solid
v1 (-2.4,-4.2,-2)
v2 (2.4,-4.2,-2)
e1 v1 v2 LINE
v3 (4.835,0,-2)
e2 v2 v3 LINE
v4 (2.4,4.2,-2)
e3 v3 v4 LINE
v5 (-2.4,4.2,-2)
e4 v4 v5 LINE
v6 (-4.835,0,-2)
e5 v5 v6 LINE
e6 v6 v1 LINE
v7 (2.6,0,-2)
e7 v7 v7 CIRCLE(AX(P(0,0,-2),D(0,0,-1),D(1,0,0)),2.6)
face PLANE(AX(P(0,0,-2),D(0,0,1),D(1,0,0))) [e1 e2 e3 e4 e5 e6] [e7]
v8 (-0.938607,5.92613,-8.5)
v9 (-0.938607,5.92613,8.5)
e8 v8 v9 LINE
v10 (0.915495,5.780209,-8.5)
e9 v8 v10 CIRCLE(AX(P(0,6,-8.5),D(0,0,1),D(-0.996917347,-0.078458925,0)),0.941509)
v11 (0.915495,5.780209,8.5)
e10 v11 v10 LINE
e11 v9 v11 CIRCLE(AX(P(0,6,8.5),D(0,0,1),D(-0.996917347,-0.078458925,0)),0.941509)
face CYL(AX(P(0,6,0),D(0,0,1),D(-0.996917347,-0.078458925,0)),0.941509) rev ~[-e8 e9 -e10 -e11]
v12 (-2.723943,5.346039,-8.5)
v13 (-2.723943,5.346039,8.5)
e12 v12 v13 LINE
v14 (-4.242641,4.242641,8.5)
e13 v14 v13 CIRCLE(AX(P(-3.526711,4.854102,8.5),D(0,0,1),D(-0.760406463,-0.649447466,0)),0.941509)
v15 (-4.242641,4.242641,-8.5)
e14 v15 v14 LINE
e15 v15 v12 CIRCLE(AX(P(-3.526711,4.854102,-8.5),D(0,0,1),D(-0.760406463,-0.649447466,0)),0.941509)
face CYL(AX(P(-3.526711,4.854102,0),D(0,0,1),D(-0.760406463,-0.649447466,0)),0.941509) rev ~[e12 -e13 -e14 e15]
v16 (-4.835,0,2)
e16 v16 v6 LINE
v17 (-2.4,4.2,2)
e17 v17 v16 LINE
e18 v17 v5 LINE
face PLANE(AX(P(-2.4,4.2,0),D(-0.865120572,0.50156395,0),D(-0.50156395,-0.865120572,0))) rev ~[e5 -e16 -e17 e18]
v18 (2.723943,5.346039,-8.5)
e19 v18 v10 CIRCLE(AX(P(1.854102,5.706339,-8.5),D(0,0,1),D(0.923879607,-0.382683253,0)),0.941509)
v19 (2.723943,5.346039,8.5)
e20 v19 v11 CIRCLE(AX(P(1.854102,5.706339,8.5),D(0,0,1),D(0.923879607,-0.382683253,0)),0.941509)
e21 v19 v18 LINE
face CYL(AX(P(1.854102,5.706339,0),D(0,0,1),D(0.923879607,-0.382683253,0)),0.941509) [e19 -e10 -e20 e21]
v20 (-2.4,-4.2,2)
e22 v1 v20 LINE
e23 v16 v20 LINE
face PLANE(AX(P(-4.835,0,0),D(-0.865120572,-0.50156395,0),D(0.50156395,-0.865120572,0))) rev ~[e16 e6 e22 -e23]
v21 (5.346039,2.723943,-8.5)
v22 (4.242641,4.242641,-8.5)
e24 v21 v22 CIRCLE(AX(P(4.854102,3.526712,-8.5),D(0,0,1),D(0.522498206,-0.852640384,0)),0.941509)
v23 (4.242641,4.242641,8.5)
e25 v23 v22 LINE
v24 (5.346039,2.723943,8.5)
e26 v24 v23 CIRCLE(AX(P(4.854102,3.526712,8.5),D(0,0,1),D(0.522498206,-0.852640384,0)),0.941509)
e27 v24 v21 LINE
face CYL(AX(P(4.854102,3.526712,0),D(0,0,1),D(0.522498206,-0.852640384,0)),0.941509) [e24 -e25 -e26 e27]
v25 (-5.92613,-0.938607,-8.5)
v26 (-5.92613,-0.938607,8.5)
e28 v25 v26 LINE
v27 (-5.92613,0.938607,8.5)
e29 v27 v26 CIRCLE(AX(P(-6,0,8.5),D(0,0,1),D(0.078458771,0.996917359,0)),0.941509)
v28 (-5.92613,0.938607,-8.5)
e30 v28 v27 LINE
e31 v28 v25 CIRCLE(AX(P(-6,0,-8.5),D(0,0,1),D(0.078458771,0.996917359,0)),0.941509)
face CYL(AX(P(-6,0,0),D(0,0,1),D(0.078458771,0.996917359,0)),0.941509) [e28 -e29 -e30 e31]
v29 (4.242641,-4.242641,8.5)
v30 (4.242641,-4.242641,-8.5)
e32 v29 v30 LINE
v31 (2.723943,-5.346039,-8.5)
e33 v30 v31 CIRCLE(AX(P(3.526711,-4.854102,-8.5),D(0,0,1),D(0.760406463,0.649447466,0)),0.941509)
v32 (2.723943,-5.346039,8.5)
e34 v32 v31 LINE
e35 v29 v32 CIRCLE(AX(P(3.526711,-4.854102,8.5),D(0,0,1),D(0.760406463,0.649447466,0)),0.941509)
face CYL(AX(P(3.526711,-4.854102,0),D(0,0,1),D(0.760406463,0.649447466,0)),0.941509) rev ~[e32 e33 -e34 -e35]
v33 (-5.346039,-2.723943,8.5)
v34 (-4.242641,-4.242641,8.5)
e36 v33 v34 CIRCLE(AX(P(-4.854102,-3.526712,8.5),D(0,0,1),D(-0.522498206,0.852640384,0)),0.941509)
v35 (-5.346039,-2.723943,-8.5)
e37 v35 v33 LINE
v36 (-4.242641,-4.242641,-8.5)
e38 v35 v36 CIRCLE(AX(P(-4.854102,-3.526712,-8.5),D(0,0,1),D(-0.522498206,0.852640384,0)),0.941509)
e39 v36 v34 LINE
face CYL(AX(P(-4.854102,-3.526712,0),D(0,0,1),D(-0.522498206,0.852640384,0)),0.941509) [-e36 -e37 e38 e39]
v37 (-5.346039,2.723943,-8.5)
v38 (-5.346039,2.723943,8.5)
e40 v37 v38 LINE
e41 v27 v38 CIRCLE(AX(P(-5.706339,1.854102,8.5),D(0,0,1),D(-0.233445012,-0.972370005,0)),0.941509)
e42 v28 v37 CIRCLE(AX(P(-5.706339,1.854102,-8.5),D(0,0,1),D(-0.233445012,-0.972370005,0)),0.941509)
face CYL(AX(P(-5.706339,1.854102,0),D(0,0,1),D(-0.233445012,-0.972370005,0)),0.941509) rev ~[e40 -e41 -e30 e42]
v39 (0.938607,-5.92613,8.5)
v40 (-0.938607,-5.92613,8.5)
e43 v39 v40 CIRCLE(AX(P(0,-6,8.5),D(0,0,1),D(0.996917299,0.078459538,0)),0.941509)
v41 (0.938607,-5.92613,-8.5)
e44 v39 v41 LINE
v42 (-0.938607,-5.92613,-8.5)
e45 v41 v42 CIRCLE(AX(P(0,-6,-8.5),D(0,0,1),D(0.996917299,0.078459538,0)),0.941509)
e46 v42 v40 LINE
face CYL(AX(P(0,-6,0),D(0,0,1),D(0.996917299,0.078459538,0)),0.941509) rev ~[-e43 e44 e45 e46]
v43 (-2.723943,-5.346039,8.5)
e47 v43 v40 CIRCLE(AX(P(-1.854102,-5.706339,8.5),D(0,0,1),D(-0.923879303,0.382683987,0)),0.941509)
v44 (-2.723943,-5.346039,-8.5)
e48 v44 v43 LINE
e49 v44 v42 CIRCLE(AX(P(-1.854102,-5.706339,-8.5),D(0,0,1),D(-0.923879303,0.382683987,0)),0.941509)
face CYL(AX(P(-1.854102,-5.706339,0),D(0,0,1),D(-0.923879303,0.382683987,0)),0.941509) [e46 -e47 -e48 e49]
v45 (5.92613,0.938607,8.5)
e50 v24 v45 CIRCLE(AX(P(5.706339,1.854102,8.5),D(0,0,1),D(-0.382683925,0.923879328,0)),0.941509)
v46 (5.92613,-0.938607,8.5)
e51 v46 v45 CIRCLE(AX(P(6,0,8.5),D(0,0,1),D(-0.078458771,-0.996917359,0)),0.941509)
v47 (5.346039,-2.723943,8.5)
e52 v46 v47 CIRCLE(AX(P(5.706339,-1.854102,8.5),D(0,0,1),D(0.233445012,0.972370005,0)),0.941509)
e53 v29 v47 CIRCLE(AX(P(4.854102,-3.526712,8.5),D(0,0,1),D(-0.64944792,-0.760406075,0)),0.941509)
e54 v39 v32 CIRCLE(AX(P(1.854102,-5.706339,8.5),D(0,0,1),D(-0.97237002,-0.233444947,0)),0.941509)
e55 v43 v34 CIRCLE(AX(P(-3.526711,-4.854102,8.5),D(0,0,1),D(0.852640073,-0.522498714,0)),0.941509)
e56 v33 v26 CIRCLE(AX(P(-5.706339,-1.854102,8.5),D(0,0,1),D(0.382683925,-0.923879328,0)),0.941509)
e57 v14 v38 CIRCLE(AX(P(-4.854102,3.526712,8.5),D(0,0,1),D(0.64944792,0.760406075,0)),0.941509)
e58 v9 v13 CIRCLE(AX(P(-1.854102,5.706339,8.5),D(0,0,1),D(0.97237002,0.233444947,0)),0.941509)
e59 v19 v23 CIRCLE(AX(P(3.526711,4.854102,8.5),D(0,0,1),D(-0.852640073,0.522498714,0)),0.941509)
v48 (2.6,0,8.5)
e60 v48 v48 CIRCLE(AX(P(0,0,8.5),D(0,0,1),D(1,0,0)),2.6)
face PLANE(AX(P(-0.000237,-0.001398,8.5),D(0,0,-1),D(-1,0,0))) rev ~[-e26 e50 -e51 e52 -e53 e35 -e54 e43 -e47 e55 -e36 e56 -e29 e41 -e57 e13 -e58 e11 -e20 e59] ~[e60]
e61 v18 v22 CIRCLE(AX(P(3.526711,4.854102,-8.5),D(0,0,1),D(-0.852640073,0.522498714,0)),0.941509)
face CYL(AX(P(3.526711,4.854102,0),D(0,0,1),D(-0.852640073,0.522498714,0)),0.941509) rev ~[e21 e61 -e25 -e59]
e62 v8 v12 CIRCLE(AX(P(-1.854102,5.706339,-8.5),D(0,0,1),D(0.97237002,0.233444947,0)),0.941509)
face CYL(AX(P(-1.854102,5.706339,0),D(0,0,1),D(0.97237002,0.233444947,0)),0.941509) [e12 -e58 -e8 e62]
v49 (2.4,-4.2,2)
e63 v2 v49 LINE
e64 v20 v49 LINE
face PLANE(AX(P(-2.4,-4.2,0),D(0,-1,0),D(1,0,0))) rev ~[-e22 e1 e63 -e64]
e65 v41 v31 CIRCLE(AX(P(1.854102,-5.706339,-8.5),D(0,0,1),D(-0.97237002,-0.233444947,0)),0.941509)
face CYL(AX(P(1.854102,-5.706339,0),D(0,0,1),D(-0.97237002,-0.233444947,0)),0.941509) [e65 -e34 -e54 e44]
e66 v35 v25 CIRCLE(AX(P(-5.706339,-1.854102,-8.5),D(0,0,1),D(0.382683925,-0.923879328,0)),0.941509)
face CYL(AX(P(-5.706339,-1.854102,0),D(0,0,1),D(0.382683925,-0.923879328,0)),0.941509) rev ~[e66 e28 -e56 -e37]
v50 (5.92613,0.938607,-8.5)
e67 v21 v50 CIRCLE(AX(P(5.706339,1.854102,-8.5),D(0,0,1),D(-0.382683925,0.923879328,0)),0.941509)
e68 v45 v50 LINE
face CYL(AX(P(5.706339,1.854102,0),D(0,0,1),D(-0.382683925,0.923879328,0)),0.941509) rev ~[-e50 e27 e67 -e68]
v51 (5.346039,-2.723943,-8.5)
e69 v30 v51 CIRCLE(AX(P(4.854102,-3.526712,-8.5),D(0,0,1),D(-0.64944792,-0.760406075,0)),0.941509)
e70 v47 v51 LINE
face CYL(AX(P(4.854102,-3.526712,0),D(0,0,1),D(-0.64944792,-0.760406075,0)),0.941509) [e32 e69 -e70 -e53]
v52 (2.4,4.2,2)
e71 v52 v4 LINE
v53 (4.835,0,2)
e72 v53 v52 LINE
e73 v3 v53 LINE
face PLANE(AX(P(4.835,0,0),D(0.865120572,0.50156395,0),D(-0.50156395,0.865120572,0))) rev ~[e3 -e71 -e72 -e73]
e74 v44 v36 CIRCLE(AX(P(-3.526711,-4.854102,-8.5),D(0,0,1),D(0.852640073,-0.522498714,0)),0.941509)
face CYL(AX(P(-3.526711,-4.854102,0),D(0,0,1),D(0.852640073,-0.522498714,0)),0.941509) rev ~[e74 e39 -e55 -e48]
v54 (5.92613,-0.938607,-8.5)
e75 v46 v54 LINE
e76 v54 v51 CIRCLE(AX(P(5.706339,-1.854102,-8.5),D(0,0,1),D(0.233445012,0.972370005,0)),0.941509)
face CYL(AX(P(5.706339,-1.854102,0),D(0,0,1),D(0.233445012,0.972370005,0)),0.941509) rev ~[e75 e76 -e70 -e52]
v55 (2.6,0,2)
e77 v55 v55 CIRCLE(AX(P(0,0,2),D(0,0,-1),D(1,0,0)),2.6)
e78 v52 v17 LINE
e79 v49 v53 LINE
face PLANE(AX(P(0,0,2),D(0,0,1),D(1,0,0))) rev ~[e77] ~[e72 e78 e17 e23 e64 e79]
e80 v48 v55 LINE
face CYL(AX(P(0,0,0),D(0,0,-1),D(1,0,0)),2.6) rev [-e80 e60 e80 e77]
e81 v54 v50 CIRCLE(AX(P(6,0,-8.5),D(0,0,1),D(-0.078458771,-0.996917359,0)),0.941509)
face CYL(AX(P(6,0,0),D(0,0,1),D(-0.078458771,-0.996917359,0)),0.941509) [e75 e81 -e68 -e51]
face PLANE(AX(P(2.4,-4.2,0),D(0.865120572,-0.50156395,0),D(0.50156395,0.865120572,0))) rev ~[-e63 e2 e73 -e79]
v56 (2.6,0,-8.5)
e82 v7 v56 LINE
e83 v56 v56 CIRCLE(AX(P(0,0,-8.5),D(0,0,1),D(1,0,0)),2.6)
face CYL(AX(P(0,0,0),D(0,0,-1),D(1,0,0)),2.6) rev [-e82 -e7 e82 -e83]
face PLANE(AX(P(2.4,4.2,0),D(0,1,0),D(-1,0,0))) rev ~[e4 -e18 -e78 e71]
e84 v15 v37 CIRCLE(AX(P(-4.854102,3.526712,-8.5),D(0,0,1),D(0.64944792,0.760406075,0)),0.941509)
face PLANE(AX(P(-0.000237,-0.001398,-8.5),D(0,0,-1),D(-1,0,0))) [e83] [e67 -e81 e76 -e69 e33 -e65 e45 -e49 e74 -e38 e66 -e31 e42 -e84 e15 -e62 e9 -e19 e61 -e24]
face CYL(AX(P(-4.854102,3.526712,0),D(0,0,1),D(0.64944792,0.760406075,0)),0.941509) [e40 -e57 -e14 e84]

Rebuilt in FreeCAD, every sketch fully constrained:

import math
import FreeCAD as App
import Part
import Sketcher

doc = App.newDocument("Part")
body = doc.addObject("PartDesign::Body", "Body")

# Sketch on XY plane
sketch1 = body.newObject("Sketcher::SketchObject", "Sketch")
sketch1.AttachmentSupport = (doc.getObject("XY_Plane"), [""])
sketch1.MapMode = "FlatFace"
sketch1.addGeometry(Part.LineSegment(App.Vector(-4.8, 0, 0), App.Vector(-2.4, -4.2, 0)), False)
sketch1.addGeometry(Part.LineSegment(App.Vector(-2.4, -4.2, 0), App.Vector(2.4, -4.2, 0)), False)
sketch1.addGeometry(Part.LineSegment(App.Vector(2.4, -4.2, 0), App.Vector(4.8, 0, 0)), False)
sketch1.addGeometry(Part.LineSegment(App.Vector(4.8, 0, 0), App.Vector(2.4, 4.2, 0)), False)
sketch1.addGeometry(Part.LineSegment(App.Vector(2.4, 4.2, 0), App.Vector(-2.4, 4.2, 0)), False)
sketch1.addGeometry(Part.LineSegment(App.Vector(-2.4, 4.2, 0), App.Vector(-4.8, 0, 0)), False)
sketch1.addConstraint(Sketcher.Constraint("Coincident", 0, 2, 1, 1))
sketch1.addConstraint(Sketcher.Constraint("Coincident", 1, 2, 2, 1))
sketch1.addConstraint(Sketcher.Constraint("Coincident", 2, 2, 3, 1))
sketch1.addConstraint(Sketcher.Constraint("Coincident", 3, 2, 4, 1))
sketch1.addConstraint(Sketcher.Constraint("Coincident", 4, 2, 5, 1))
sketch1.addConstraint(Sketcher.Constraint("Coincident", 5, 2, 0, 1))
sketch1.addConstraint(Sketcher.Constraint("Horizontal", 1))
sketch1.addConstraint(Sketcher.Constraint("Horizontal", 4))
sketch1.addConstraint(Sketcher.Constraint("Symmetric", 0, 2, 3, 2, -1, 1))
sketch1.addConstraint(Sketcher.Constraint("Symmetric", 2, 2, 5, 2, -1, 1))
sketch1.addConstraint(Sketcher.Constraint("PointOnObject", 2, 2, -1))
sketch1.addConstraint(Sketcher.Constraint("Parallel", 2, 5))
sketch1.addConstraint(Sketcher.Constraint("Vertical", 1, 2, 3, 2))
sketch1.addConstraint(Sketcher.Constraint("DistanceX", 1, 1, 1, 2, 4.8))
sketch1.addConstraint(Sketcher.Constraint("DistanceY", 0, 2, -1, 1, 4.2))
sketch1.addConstraint(Sketcher.Constraint("DistanceX", 5, 2, 2, 2, 9.67))
pad1 = body.newObject("PartDesign::Pad", "Pad")
pad1.Profile = sketch1
pad1.Length = 4
pad1.Midplane = True
body2 = doc.addObject("PartDesign::Body", "Body001")

# Sketch on XY plane
sketch2 = body2.newObject("Sketcher::SketchObject", "Sketch001")
sketch2.AttachmentSupport = (doc.getObject("XY_Plane001"), [""])
sketch2.MapMode = "FlatFace"
sketch2.addGeometry(Part.ArcOfCircle(Part.Circle(App.Vector(0, 6, 0), App.Vector(0, 0, 1), 0.9), math.radians(-176), math.radians(-13)), False)
sketch2.addGeometry(Part.ArcOfCircle(Part.Circle(App.Vector(-1.9, 5.7, 0), App.Vector(0, 0, 1), 0.9), math.radians(13), math.radians(203)), False)
sketch2.addGeometry(Part.ArcOfCircle(Part.Circle(App.Vector(-3.5, 4.9, 0), App.Vector(0, 0, 1), 0.9), math.radians(-140), math.radians(32)), False)
sketch2.addGeometry(Part.ArcOfCircle(Part.Circle(App.Vector(-4.9, 3.5, 0), App.Vector(0, 0, 1), 0.9), math.radians(50), math.radians(239)), False)
sketch2.addGeometry(Part.ArcOfCircle(Part.Circle(App.Vector(-5.7, 1.9, 0), App.Vector(0, 0, 1), 0.9), math.radians(-103), math.radians(67)), False)
sketch2.addGeometry(Part.ArcOfCircle(Part.Circle(App.Vector(-6, 0, 0), App.Vector(0, 0, 1), 0.9), math.radians(86), math.radians(274)), False)
sketch2.addGeometry(Part.ArcOfCircle(Part.Circle(App.Vector(-5.7, -1.9, 0), App.Vector(0, 0, 1), 0.9), math.radians(-67), math.radians(103)), False)
sketch2.addGeometry(Part.ArcOfCircle(Part.Circle(App.Vector(-4.9, -3.5, 0), App.Vector(0, 0, 1), 0.9), math.radians(121), math.radians(310)), False)
sketch2.addGeometry(Part.ArcOfCircle(Part.Circle(App.Vector(-3.5, -4.9, 0), App.Vector(0, 0, 1), 0.9), math.radians(-32), math.radians(140)), False)
sketch2.addGeometry(Part.ArcOfCircle(Part.Circle(App.Vector(-1.9, -5.7, 0), App.Vector(0, 0, 1), 0.9), math.radians(157), math.radians(347)), False)
sketch2.addGeometry(Part.ArcOfCircle(Part.Circle(App.Vector(0, -6, 0), App.Vector(0, 0, 1), 0.9), math.radians(5), math.radians(175)), False)
sketch2.addGeometry(Part.ArcOfCircle(Part.Circle(App.Vector(1.9, -5.7, 0), App.Vector(0, 0, 1), 0.9), math.radians(-167), math.radians(23)), False)
sketch2.addGeometry(Part.ArcOfCircle(Part.Circle(App.Vector(3.5, -4.9, 0), App.Vector(0, 0, 1), 0.9), math.radians(40), math.radians(212)), False)
sketch2.addGeometry(Part.ArcOfCircle(Part.Circle(App.Vector(4.9, -3.5, 0), App.Vector(0, 0, 1), 0.9), math.radians(-130), math.radians(59)), False)
sketch2.addGeometry(Part.ArcOfCircle(Part.Circle(App.Vector(5.7, -1.9, 0), App.Vector(0, 0, 1), 0.9), math.radians(77), math.radians(247)), False)
sketch2.addGeometry(Part.ArcOfCircle(Part.Circle(App.Vector(6, 0, 0), App.Vector(0, 0, 1), 0.9), math.radians(-94), math.radians(94)), False)
sketch2.addGeometry(Part.ArcOfCircle(Part.Circle(App.Vector(5.7, 1.9, 0), App.Vector(0, 0, 1), 0.9), math.radians(113), math.radians(283)), False)
sketch2.addGeometry(Part.ArcOfCircle(Part.Circle(App.Vector(4.9, 3.5, 0), App.Vector(0, 0, 1), 0.9), math.radians(-59), math.radians(130)), False)
sketch2.addGeometry(Part.ArcOfCircle(Part.Circle(App.Vector(3.5, 4.9, 0), App.Vector(0, 0, 1), 0.9), math.radians(148), math.radians(320)), False)
sketch2.addGeometry(Part.ArcOfCircle(Part.Circle(App.Vector(1.9, 5.7, 0), App.Vector(0, 0, 1), 0.9), math.radians(-22), math.radians(175)), False)
sketch2.addGeometry(Part.Circle(App.Vector(0, 0, 0), App.Vector(0, 0, 1), 2.6), False)
sketch2.addConstraint(Sketcher.Constraint("Coincident", 0, 1, 1, 1))
sketch2.addConstraint(Sketcher.Constraint("Coincident", 1, 2, 2, 2))
sketch2.addConstraint(Sketcher.Constraint("Coincident", 2, 1, 3, 1))
sketch2.addConstraint(Sketcher.Constraint("Coincident", 3, 2, 4, 2))
sketch2.addConstraint(Sketcher.Constraint("Coincident", 4, 1, 5, 1))
sketch2.addConstraint(Sketcher.Constraint("Coincident", 5, 2, 6, 2))
sketch2.addConstraint(Sketcher.Constraint("Coincident", 6, 1, 7, 1))
sketch2.addConstraint(Sketcher.Constraint("Coincident", 7, 2, 8, 2))
sketch2.addConstraint(Sketcher.Constraint("Coincident", 8, 1, 9, 1))
sketch2.addConstraint(Sketcher.Constraint("Coincident", 9, 2, 10, 2))
sketch2.addConstraint(Sketcher.Constraint("Coincident", 10, 1, 11, 1))
sketch2.addConstraint(Sketcher.Constraint("Coincident", 11, 2, 12, 2))
sketch2.addConstraint(Sketcher.Constraint("Coincident", 12, 1, 13, 1))
sketch2.addConstraint(Sketcher.Constraint("Coincident", 13, 2, 14, 2))
sketch2.addConstraint(Sketcher.Constraint("Coincident", 14, 1, 15, 1))
sketch2.addConstraint(Sketcher.Constraint("Coincident", 15, 2, 16, 2))
sketch2.addConstraint(Sketcher.Constraint("Coincident", 16, 1, 17, 1))
sketch2.addConstraint(Sketcher.Constraint("Coincident", 17, 2, 18, 2))
sketch2.addConstraint(Sketcher.Constraint("Coincident", 18, 1, 19, 1))
sketch2.addConstraint(Sketcher.Constraint("Coincident", 19, 2, 0, 2))
sketch2.addConstraint(Sketcher.Constraint("Coincident", 20, 3, -1, 1))
sketch2.addConstraint(Sketcher.Constraint("Equal", 0, 1))
sketch2.addConstraint(Sketcher.Constraint("Equal", 1, 2))
sketch2.addConstraint(Sketcher.Constraint("Equal", 2, 3))
sketch2.addConstraint(Sketcher.Constraint("Equal", 3, 4))
sketch2.addConstraint(Sketcher.Constraint("Equal", 4, 5))
sketch2.addConstraint(Sketcher.Constraint("Equal", 5, 6))
sketch2.addConstraint(Sketcher.Constraint("Equal", 6, 7))
sketch2.addConstraint(Sketcher.Constraint("Equal", 7, 8))
sketch2.addConstraint(Sketcher.Constraint("Equal", 8, 9))
sketch2.addConstraint(Sketcher.Constraint("Equal", 9, 10))
sketch2.addConstraint(Sketcher.Constraint("Equal", 10, 11))
sketch2.addConstraint(Sketcher.Constraint("Equal", 11, 12))
sketch2.addConstraint(Sketcher.Constraint("Equal", 12, 13))
sketch2.addConstraint(Sketcher.Constraint("Equal", 13, 14))
sketch2.addConstraint(Sketcher.Constraint("Equal", 14, 15))
sketch2.addConstraint(Sketcher.Constraint("Equal", 15, 16))
sketch2.addConstraint(Sketcher.Constraint("Equal", 16, 17))
sketch2.addConstraint(Sketcher.Constraint("Equal", 17, 18))
sketch2.addConstraint(Sketcher.Constraint("Equal", 18, 19))
sketch2.addConstraint(Sketcher.Constraint("Symmetric", 0, 3, 10, 3, -1, 1))
sketch2.addConstraint(Sketcher.Constraint("Symmetric", 1, 3, 11, 3, -1, 1))
sketch2.addConstraint(Sketcher.Constraint("Symmetric", 2, 3, 12, 3, -1, 1))
sketch2.addConstraint(Sketcher.Constraint("Symmetric", 3, 3, 13, 3, -1, 1))
sketch2.addConstraint(Sketcher.Constraint("Symmetric", 4, 3, 14, 3, -1, 1))
sketch2.addConstraint(Sketcher.Constraint("Symmetric", 5, 3, 15, 3, -1, 1))
sketch2.addConstraint(Sketcher.Constraint("Symmetric", 6, 3, 16, 3, -1, 1))
sketch2.addConstraint(Sketcher.Constraint("Symmetric", 7, 3, 17, 3, -1, 1))
sketch2.addConstraint(Sketcher.Constraint("Symmetric", 8, 3, 18, 3, -1, 1))
sketch2.addConstraint(Sketcher.Constraint("Symmetric", 9, 3, 19, 3, -1, 1))
sketch2.addConstraint(Sketcher.Constraint("Symmetric", 9, 3, 11, 3, -2))
sketch2.addConstraint(Sketcher.Constraint("Symmetric", 8, 3, 12, 3, -2))
sketch2.addConstraint(Sketcher.Constraint("Symmetric", 7, 3, 13, 3, -2))
sketch2.addConstraint(Sketcher.Constraint("Symmetric", 6, 3, 14, 3, -2))
sketch2.addConstraint(Sketcher.Constraint("PointOnObject", 0, 3, -2))
sketch2.addConstraint(Sketcher.Constraint("PointOnObject", 5, 3, -1))
sketch2.addConstraint(Sketcher.Constraint("Diameter", 20, 5.2))
sketch2.addConstraint(Sketcher.Constraint("DistanceY", -1, 1, 0, 3, 6.0))
sketch2.addConstraint(Sketcher.Constraint("DistanceX", 5, 3, -1, 1, 6.0))
sketch2.addConstraint(Sketcher.Constraint("DistanceX", 3, 3, 1, 3, 3.0))
sketch2.addConstraint(Sketcher.Constraint("DistanceY", 4, 3, 2, 3, 2.999999))
sketch2.addConstraint(Sketcher.Constraint("Radius", 0, 0.941509))
sketch2.addConstraint(Sketcher.Constraint("DistanceY", -1, 1, 2, 3, 4.854102))
sketch2.addConstraint(Sketcher.Constraint("DistanceX", -1, 1, 19, 3, 1.854102))
sketch2.addConstraint(Sketcher.Constraint("DistanceY", 1, 2, 1, 3, 0.3603))
sketch2.addConstraint(Sketcher.Constraint("DistanceX", 2, 1, 1, 2, 1.518698))
sketch2.addConstraint(Sketcher.Constraint("DistanceY", 2, 1, 1, 2, 1.103398))
sketch2.addConstraint(Sketcher.Constraint("DistanceX", 4, 3, 2, 1, 1.463698))
pad2 = body2.newObject("PartDesign::Pad", "Pad001")
pad2.Profile = sketch2
pad2.Length = 17
pad2.Midplane = True
doc.recompute()

boolean = body2.newObject("PartDesign::Boolean", "Boolean")
boolean.Type = "Cut"
boolean.addObjects([body])

doc.recompute()
